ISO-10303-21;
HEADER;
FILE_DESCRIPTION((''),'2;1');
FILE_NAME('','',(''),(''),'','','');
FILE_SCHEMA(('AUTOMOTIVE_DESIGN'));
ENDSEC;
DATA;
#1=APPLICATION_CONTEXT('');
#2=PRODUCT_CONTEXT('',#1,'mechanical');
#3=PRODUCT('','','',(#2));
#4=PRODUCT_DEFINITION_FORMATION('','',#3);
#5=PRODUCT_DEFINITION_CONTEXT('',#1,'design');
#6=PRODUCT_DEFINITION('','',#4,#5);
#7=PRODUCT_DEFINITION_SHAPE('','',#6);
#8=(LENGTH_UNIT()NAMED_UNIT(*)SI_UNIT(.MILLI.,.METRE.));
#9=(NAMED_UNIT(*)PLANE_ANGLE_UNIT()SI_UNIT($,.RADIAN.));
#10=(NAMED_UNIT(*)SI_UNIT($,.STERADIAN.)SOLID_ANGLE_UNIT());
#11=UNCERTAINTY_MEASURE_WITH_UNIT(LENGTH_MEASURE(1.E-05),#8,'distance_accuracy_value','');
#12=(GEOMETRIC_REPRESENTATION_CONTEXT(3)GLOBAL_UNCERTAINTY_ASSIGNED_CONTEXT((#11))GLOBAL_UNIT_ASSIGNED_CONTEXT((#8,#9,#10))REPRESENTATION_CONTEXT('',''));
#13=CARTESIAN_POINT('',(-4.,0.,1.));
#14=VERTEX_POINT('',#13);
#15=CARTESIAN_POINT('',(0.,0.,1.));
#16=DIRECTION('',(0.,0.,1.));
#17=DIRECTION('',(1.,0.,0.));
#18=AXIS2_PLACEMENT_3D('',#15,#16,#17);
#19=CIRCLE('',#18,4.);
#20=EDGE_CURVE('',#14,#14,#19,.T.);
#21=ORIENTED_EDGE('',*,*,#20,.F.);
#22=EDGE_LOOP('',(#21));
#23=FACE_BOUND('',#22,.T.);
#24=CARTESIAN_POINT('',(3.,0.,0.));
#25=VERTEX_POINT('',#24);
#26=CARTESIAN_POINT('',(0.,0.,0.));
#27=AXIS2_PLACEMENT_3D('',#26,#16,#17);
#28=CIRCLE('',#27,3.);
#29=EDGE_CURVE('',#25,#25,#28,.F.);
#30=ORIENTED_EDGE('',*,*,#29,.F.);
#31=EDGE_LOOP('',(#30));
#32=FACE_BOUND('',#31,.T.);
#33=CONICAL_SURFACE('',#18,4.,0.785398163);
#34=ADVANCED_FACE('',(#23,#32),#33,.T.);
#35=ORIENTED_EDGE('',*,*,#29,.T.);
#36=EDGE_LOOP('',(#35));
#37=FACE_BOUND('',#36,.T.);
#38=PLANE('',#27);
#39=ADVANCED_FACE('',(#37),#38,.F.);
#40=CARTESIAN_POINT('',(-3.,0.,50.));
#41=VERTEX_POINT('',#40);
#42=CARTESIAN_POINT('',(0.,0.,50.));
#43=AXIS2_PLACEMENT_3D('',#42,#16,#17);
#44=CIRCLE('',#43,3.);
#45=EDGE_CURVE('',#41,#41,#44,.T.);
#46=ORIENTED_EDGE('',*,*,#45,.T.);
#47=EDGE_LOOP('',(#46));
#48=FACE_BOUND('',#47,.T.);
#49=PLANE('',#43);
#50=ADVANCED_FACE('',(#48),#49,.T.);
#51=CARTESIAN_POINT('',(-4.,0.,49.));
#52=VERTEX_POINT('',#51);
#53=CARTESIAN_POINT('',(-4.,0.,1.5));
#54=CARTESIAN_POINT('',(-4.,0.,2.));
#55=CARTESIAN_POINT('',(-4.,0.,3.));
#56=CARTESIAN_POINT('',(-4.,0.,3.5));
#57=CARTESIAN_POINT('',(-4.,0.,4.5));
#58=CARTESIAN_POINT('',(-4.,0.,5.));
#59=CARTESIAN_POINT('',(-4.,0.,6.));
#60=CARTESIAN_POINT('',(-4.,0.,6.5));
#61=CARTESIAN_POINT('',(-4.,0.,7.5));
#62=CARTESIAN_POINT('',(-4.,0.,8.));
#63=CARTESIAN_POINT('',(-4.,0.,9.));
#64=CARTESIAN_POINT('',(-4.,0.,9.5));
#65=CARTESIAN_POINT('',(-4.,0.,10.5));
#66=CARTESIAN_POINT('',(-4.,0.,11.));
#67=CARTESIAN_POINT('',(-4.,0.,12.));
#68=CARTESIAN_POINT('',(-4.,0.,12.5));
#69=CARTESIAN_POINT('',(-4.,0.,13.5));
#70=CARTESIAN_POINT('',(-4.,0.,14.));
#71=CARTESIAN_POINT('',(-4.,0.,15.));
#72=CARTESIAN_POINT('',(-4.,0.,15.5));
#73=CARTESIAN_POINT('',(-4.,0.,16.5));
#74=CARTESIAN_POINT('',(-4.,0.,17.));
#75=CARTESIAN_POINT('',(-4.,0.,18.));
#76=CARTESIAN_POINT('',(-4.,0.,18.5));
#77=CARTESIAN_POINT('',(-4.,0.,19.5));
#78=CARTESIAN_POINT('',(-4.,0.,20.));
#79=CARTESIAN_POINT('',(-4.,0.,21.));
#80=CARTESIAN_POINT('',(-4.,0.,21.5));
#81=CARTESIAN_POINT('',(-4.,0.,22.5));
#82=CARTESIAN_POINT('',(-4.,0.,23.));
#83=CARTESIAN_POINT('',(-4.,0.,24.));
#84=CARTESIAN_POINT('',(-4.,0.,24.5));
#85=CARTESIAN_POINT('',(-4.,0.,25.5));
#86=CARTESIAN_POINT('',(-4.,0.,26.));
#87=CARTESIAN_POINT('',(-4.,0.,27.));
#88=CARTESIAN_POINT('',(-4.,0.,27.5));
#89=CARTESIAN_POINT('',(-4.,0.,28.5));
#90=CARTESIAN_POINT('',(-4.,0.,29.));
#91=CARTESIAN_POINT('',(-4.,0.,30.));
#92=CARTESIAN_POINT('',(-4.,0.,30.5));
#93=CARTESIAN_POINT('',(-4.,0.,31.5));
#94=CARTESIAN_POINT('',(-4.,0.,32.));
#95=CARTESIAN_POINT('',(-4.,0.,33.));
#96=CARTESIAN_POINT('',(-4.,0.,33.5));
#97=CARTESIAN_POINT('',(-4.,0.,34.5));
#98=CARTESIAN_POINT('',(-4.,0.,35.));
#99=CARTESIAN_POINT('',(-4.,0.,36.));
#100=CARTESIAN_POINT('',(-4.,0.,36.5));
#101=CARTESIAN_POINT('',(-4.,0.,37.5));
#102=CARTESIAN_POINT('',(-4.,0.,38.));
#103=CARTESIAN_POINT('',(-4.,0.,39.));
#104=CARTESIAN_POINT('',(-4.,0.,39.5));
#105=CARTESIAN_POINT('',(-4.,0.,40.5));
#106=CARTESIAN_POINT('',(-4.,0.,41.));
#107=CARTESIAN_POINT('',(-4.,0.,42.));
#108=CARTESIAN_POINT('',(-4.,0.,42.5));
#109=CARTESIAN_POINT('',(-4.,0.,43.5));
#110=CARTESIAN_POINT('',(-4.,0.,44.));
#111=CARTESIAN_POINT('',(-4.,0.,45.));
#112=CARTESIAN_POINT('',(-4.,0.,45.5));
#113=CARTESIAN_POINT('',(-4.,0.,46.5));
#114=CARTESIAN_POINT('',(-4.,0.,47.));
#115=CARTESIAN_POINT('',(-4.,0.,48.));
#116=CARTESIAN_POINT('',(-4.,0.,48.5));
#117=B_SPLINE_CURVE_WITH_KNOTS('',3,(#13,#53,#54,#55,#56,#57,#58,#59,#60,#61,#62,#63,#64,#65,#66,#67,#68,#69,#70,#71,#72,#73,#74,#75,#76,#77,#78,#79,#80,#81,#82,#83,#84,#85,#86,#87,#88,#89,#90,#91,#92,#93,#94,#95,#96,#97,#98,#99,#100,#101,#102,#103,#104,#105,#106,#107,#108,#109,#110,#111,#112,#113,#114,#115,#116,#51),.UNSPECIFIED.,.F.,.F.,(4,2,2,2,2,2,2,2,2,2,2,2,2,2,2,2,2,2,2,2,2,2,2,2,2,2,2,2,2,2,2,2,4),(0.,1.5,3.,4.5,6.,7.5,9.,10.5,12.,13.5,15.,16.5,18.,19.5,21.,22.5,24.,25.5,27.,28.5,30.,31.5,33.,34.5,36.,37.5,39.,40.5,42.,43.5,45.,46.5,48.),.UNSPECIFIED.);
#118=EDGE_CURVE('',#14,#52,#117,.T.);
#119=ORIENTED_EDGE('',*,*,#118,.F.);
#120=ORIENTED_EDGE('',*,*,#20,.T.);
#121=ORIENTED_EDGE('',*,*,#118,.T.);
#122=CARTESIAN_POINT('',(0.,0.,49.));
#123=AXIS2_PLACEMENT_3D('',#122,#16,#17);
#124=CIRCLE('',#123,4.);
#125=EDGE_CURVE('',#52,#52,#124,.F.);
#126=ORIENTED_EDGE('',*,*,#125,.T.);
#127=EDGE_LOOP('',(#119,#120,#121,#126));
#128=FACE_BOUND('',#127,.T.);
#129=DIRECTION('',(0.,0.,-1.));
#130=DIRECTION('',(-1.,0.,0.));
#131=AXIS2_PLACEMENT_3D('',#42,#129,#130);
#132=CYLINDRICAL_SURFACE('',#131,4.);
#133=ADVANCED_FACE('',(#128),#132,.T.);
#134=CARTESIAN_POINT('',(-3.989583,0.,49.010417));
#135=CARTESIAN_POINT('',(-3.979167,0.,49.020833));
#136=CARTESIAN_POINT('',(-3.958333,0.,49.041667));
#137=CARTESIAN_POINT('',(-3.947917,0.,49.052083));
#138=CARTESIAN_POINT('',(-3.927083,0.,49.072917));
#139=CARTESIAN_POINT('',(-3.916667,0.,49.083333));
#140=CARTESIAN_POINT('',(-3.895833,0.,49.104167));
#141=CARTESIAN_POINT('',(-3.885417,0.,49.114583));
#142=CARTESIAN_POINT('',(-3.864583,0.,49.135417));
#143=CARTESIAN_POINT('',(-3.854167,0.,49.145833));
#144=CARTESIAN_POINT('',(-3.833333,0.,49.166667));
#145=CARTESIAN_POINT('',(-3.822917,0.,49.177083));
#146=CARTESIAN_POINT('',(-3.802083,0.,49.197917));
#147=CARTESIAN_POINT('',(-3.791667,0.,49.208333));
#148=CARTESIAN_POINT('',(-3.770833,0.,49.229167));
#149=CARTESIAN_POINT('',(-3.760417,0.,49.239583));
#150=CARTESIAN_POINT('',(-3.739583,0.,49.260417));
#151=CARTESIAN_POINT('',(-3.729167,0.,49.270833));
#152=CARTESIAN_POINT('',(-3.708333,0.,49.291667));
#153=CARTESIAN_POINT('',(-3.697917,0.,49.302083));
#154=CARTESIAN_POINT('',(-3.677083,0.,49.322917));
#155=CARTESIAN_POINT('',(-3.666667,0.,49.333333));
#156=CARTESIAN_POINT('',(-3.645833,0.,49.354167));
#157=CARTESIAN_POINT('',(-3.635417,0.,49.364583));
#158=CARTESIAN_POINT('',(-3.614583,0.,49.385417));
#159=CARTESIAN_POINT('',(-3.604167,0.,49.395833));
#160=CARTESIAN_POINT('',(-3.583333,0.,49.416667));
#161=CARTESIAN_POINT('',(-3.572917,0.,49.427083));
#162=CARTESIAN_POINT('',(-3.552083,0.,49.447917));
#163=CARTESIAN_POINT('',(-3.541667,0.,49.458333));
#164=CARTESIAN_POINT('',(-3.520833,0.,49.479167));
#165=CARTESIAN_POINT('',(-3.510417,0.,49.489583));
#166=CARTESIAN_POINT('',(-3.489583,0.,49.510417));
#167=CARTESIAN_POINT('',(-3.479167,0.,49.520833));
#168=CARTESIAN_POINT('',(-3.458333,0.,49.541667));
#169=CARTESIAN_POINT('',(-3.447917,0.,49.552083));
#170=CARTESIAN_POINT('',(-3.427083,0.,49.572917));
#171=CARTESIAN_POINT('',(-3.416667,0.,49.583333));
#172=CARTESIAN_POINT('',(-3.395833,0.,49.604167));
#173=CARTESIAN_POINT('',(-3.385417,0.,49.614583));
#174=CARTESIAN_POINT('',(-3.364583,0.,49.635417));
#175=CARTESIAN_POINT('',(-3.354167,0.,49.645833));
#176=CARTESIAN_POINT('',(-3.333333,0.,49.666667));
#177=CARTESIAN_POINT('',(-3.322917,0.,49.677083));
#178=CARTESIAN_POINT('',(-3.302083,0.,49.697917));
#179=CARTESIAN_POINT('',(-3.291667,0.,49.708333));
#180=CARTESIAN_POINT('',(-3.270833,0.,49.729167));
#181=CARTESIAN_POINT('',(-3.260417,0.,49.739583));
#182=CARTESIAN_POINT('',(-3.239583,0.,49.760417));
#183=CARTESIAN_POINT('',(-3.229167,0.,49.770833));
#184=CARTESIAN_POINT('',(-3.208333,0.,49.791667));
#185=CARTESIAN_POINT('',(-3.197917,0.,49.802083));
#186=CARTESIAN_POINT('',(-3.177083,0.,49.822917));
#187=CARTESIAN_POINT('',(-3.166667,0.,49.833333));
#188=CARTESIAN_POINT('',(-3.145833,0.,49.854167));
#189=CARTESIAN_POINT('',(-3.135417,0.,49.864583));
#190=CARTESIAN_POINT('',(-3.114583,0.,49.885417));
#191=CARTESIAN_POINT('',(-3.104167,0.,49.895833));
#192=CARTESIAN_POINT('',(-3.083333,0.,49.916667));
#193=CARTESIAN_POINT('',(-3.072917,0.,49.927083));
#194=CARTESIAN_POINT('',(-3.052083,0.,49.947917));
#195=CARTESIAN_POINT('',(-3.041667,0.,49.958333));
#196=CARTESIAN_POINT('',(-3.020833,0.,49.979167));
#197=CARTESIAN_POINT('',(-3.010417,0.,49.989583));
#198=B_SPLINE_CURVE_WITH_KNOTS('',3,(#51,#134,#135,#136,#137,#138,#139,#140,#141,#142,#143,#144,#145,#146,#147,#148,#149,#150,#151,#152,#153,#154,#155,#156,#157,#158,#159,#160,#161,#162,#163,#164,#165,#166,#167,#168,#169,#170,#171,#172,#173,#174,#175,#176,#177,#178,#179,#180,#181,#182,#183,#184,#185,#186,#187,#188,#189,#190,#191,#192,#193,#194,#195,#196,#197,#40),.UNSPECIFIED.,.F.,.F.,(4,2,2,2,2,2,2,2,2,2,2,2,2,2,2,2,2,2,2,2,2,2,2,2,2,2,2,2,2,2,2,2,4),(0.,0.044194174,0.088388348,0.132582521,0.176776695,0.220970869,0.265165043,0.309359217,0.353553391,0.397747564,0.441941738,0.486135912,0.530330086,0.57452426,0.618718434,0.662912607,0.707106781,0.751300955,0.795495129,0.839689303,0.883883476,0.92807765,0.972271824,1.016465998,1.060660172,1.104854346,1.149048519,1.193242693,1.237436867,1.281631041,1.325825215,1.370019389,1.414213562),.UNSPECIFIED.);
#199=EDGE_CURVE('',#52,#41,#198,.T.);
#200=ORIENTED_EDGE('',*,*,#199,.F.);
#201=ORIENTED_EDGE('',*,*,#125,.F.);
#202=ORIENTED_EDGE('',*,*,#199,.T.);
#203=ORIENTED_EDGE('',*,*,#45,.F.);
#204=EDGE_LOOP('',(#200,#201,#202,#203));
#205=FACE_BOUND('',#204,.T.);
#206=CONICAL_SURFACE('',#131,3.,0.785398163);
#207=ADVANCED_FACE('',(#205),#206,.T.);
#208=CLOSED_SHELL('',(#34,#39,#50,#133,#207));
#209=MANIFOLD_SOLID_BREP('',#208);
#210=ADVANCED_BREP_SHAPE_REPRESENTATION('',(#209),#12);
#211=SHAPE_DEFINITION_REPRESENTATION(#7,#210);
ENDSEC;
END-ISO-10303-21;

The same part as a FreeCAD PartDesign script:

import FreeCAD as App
import Part
import Sketcher


def edges_at(feature, points):
    """Names of the edges that pass closest to the given points."""
    edges = feature.Shape.Edges
    near = lambda p: min(range(len(edges)), key=lambda i: edges[i].distToShape(Part.Vertex(*p))[0])
    return sorted({f"Edge{near(p) + 1}" for p in points})

doc = App.newDocument("Part")
body = doc.addObject("PartDesign::Body", "Body")

# Sketch on XY plane
sketch1 = doc.addObject("Sketcher::SketchObject", "Sketch")
body.addObject(sketch1)
sketch1.AttachmentSupport = (doc.XY_Plane, [""])
sketch1.MapMode = "FlatFace"
sketch1.addGeometry(Part.Circle(App.Vector(0, 0, 0), App.Vector(0, 0, 1), 4), False)
sketch1.addConstraint(Sketcher.Constraint("Coincident", 0, 3, -1, 1))
sketch1.addConstraint(Sketcher.Constraint("Diameter", 0, 8.0))
pad1 = doc.addObject("PartDesign::Pad", "Pad")
body.addObject(pad1)
pad1.Profile = sketch1
pad1.Length = 50
doc.recompute()

chamfer = doc.addObject("PartDesign::Chamfer", "Chamfer")
body.addObject(chamfer)
chamfer.Base = (pad1, edges_at(pad1, [(-4, 0, 0), (-4, 0, 50)]))
chamfer.Size = 1

doc.recompute()
